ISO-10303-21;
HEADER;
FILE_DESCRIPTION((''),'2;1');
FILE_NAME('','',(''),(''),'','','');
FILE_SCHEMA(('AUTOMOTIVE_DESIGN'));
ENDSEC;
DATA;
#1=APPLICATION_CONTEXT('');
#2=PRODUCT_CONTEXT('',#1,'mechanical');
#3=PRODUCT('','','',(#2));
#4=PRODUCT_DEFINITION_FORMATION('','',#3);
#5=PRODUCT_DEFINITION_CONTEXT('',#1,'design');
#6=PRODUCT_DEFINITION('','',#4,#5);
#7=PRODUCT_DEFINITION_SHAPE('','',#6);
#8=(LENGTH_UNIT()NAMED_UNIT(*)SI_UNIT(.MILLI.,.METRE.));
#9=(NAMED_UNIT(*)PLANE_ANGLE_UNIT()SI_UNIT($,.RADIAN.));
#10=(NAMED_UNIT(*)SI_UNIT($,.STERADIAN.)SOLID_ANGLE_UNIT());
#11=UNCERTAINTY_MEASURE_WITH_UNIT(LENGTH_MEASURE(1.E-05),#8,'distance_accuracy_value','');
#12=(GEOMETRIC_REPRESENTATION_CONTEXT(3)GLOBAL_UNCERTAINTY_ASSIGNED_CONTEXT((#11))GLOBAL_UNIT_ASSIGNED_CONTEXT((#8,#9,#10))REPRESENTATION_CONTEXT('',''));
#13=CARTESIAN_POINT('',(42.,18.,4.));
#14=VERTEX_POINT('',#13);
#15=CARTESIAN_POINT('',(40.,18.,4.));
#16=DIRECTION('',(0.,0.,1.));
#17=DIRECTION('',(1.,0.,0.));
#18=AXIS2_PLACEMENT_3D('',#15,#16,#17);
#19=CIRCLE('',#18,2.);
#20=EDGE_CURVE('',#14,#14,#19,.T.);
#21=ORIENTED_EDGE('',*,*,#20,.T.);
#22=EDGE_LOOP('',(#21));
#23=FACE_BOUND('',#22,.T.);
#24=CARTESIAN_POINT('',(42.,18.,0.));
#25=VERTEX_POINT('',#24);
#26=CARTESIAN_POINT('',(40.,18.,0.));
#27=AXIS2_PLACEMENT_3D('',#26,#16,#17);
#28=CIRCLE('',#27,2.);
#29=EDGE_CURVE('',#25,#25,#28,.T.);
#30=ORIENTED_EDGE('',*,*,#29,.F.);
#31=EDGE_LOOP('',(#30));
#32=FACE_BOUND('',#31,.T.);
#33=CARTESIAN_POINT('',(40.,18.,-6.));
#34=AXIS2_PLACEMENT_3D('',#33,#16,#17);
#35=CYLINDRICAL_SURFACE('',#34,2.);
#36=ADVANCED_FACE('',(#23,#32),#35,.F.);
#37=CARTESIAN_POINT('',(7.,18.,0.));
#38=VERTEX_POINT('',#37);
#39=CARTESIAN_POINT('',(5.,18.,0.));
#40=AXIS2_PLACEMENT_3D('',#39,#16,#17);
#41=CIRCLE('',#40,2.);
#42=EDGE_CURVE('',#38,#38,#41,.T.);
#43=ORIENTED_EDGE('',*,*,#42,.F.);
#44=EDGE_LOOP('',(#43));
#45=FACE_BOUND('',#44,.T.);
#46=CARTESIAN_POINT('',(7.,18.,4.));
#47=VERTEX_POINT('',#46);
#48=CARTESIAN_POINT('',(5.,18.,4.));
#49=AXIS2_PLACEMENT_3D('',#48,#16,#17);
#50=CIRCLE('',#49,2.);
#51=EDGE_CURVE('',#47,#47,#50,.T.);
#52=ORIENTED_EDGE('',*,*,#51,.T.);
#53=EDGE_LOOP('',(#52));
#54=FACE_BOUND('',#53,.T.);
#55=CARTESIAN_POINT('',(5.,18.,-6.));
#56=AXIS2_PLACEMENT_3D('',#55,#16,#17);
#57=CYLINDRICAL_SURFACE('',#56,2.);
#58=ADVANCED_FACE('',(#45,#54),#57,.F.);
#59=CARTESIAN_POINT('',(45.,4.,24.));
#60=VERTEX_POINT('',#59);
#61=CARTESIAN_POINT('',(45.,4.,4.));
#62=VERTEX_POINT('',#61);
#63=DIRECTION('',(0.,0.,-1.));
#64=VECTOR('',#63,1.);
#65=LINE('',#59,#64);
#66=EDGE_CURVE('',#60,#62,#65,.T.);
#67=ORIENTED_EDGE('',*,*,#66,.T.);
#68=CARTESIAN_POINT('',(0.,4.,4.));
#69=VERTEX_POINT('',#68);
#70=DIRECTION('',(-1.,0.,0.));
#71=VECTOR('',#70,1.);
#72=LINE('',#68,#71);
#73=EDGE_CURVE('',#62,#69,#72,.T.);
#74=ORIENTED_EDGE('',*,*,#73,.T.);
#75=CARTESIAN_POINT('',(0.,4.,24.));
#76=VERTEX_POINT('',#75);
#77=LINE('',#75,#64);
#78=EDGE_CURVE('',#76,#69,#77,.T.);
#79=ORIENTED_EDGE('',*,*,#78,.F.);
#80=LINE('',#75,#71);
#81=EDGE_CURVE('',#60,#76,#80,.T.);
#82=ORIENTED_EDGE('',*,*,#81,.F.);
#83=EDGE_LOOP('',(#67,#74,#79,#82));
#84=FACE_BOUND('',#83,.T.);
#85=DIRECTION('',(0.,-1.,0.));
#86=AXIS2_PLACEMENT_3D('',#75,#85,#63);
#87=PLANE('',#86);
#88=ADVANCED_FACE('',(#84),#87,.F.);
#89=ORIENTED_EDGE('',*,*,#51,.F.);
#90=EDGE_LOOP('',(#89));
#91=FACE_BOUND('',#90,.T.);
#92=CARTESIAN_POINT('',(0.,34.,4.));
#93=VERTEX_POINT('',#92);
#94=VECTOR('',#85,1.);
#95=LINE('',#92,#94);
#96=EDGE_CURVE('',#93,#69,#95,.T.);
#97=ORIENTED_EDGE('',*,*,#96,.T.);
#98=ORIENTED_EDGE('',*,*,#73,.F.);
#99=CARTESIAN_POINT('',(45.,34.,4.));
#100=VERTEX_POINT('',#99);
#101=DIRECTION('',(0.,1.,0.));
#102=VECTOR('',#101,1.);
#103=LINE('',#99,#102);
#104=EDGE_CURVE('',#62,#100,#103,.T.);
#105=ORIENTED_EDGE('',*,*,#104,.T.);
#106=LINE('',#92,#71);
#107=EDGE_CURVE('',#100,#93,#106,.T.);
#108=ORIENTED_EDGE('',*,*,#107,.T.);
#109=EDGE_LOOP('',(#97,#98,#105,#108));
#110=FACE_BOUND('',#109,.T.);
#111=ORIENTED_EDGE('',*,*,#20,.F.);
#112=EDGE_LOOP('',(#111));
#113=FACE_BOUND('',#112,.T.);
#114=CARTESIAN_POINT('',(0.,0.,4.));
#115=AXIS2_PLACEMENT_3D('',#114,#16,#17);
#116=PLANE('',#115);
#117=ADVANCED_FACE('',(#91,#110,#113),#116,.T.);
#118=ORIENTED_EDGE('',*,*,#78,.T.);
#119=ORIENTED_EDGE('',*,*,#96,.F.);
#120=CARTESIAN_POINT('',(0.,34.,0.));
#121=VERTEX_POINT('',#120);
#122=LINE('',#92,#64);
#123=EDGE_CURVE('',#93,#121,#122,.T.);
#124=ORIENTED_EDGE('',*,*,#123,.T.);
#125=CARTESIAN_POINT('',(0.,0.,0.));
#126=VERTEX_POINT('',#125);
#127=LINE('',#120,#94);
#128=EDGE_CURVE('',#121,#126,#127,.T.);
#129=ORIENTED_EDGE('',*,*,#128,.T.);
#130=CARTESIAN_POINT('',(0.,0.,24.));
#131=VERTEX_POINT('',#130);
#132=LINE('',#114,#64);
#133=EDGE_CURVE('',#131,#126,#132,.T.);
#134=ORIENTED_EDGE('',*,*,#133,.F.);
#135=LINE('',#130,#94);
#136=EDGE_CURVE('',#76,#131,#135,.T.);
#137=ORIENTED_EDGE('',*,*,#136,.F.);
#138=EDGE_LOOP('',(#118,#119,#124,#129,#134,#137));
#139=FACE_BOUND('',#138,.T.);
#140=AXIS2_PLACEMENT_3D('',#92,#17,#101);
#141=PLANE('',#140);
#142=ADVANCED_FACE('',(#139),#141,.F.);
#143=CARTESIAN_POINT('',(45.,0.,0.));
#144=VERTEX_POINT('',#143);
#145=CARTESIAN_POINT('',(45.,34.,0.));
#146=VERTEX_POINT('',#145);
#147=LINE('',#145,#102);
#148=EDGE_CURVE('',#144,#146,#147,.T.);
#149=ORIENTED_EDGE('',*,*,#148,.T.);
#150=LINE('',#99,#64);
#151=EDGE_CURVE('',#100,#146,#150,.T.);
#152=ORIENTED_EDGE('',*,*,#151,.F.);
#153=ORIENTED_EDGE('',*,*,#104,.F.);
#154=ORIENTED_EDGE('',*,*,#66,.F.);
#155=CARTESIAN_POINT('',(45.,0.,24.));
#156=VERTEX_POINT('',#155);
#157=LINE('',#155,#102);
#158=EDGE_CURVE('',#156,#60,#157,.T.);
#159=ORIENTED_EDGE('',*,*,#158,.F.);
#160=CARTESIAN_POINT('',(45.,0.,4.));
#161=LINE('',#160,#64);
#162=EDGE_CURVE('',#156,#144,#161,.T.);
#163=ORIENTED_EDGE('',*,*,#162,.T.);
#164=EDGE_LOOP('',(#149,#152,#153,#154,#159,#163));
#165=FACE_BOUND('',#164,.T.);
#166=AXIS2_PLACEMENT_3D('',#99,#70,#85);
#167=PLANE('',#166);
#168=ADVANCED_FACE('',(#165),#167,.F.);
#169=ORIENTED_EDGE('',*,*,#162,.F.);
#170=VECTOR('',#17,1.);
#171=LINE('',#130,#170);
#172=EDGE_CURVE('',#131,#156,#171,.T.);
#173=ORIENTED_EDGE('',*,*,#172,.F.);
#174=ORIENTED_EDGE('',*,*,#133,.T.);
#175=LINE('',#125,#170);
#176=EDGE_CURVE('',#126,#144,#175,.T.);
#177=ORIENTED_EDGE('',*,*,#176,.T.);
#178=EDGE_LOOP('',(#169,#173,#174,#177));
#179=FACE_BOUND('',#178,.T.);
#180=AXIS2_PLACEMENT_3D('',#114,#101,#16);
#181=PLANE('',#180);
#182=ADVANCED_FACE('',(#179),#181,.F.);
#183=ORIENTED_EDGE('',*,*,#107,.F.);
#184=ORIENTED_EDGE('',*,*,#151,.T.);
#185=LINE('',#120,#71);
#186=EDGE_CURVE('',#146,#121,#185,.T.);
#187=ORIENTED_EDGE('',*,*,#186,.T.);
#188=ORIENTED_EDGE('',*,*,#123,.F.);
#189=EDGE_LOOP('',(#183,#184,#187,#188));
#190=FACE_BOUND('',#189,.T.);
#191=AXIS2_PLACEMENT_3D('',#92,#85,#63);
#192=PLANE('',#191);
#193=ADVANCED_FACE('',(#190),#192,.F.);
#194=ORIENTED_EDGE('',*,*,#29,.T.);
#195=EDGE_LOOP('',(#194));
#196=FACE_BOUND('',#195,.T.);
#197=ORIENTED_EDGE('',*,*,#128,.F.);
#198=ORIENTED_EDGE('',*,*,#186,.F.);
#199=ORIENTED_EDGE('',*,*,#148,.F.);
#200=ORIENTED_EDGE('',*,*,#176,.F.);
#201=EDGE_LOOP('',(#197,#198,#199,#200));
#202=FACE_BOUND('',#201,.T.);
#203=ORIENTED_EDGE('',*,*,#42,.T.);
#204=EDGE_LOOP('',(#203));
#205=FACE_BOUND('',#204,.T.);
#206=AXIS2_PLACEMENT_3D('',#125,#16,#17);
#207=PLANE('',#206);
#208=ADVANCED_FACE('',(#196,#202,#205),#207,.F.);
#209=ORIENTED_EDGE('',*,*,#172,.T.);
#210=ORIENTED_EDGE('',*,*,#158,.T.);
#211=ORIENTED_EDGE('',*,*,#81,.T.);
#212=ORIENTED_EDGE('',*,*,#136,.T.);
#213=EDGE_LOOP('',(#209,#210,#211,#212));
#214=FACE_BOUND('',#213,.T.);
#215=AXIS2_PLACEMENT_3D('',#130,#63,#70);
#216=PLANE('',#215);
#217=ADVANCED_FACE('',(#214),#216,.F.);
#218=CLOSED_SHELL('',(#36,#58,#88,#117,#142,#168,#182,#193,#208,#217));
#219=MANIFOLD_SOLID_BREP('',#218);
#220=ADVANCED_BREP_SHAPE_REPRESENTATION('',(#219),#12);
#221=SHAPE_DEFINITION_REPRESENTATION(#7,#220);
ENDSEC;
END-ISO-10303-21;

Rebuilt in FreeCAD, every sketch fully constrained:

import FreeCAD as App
import Part
import Sketcher
from FreeCAD import Vector
Q = App.Units.Quantity


def add_polygon(sketch, points):
    """Adds a closed chain of lines whose ends are joined by coincident constraints."""
    first, n = sketch.GeometryCount, len(points)
    for a, b in zip(points, points[1:] + points[:1]):
        sketch.addGeometry(Part.LineSegment(App.Vector(*a, 0), App.Vector(*b, 0)), False)
    for i in range(n):
        sketch.addConstraint(Sketcher.Constraint("Coincident", first + i, 2, first + (i + 1) % n, 1))

doc = App.newDocument("Part")
body = doc.addObject("PartDesign::Body", "Body")

# Sketch on XY plane
sketch1 = body.newObject("Sketcher::SketchObject", "Sketch")
sketch1.AttachmentSupport = (doc.getObject("XY_Plane"), [""])
sketch1.MapMode = "FlatFace"
add_polygon(sketch1, [(0, 34), (0, 0), (45, 0), (45, 34)])  # lines 0-3
sketch1.addConstraint(Sketcher.Constraint("Vertical", 0))
sketch1.addConstraint(Sketcher.Constraint("Horizontal", 1))
sketch1.addConstraint(Sketcher.Constraint("Vertical", 2))
sketch1.addConstraint(Sketcher.Constraint("Horizontal", 3))
sketch1.addConstraint(Sketcher.Constraint("Coincident", 0, 2, -1, 1))
sketch1.addConstraint(Sketcher.Constraint("DistanceX", 1, 1, 1, 2, Q("45 mm")))
sketch1.addConstraint(Sketcher.Constraint("DistanceY", 0, 2, 0, 1, Q("34 mm")))
pad1 = body.newObject("PartDesign::Pad", "Pad")
pad1.Profile = sketch1
pad1.Length = 4

# Sketch on XY plane
sketch2 = body.newObject("Sketcher::SketchObject", "Sketch001")
sketch2.AttachmentSupport = (doc.getObject("XY_Plane"), [""])
sketch2.MapMode = "FlatFace"
sketch2.AttachmentOffset = App.Placement(Vector(0, 0, 4), App.Rotation())
add_polygon(sketch2, [(0, 4), (0, 0), (45, 0), (45, 4)])  # lines 0-3
sketch2.addConstraint(Sketcher.Constraint("Vertical", 0))
sketch2.addConstraint(Sketcher.Constraint("Horizontal", 1))
sketch2.addConstraint(Sketcher.Constraint("Vertical", 2))
sketch2.addConstraint(Sketcher.Constraint("Horizontal", 3))
sketch2.addConstraint(Sketcher.Constraint("Coincident", 0, 2, -1, 1))
sketch2.addConstraint(Sketcher.Constraint("DistanceX", 1, 1, 1, 2, Q("45 mm")))
sketch2.addConstraint(Sketcher.Constraint("DistanceY", 0, 2, 0, 1, Q("4 mm")))
pad2 = body.newObject("PartDesign::Pad", "Pad001")
pad2.Profile = sketch2
pad2.Length = 20

# Sketch on XY plane
sketch3 = body.newObject("Sketcher::SketchObject", "Sketch002")
sketch3.AttachmentSupport = (doc.getObject("XY_Plane"), [""])
sketch3.MapMode = "FlatFace"
sketch3.AttachmentOffset = App.Placement(Vector(0, 0, 4), App.Rotation())
sketch3.addGeometry(Part.Circle(Vector(5, 18, 0), Vector(0, 0, 1), 2), False)
sketch3.addGeometry(Part.Circle(Vector(40, 18, 0), Vector(0, 0, 1), 2), False)
sketch3.addConstraint(Sketcher.Constraint("Equal", 0, 1))
sketch3.addConstraint(Sketcher.Constraint("Horizontal", 0, 3, 1, 3))
sketch3.addConstraint(Sketcher.Constraint("Diameter", 0, Q("4 mm")))
sketch3.addConstraint(Sketcher.Constraint("DistanceX", -1, 1, 0, 3, Q("5 mm")))
sketch3.addConstraint(Sketcher.Constraint("DistanceY", -1, 1, 0, 3, Q("18 mm")))
sketch3.addConstraint(Sketcher.Constraint("DistanceX", -1, 1, 1, 3, Q("40 mm")))
pocket1 = body.newObject("PartDesign::Pocket", "Pocket")
pocket1.Profile = sketch3
pocket1.Length = 10

doc.recompute()
